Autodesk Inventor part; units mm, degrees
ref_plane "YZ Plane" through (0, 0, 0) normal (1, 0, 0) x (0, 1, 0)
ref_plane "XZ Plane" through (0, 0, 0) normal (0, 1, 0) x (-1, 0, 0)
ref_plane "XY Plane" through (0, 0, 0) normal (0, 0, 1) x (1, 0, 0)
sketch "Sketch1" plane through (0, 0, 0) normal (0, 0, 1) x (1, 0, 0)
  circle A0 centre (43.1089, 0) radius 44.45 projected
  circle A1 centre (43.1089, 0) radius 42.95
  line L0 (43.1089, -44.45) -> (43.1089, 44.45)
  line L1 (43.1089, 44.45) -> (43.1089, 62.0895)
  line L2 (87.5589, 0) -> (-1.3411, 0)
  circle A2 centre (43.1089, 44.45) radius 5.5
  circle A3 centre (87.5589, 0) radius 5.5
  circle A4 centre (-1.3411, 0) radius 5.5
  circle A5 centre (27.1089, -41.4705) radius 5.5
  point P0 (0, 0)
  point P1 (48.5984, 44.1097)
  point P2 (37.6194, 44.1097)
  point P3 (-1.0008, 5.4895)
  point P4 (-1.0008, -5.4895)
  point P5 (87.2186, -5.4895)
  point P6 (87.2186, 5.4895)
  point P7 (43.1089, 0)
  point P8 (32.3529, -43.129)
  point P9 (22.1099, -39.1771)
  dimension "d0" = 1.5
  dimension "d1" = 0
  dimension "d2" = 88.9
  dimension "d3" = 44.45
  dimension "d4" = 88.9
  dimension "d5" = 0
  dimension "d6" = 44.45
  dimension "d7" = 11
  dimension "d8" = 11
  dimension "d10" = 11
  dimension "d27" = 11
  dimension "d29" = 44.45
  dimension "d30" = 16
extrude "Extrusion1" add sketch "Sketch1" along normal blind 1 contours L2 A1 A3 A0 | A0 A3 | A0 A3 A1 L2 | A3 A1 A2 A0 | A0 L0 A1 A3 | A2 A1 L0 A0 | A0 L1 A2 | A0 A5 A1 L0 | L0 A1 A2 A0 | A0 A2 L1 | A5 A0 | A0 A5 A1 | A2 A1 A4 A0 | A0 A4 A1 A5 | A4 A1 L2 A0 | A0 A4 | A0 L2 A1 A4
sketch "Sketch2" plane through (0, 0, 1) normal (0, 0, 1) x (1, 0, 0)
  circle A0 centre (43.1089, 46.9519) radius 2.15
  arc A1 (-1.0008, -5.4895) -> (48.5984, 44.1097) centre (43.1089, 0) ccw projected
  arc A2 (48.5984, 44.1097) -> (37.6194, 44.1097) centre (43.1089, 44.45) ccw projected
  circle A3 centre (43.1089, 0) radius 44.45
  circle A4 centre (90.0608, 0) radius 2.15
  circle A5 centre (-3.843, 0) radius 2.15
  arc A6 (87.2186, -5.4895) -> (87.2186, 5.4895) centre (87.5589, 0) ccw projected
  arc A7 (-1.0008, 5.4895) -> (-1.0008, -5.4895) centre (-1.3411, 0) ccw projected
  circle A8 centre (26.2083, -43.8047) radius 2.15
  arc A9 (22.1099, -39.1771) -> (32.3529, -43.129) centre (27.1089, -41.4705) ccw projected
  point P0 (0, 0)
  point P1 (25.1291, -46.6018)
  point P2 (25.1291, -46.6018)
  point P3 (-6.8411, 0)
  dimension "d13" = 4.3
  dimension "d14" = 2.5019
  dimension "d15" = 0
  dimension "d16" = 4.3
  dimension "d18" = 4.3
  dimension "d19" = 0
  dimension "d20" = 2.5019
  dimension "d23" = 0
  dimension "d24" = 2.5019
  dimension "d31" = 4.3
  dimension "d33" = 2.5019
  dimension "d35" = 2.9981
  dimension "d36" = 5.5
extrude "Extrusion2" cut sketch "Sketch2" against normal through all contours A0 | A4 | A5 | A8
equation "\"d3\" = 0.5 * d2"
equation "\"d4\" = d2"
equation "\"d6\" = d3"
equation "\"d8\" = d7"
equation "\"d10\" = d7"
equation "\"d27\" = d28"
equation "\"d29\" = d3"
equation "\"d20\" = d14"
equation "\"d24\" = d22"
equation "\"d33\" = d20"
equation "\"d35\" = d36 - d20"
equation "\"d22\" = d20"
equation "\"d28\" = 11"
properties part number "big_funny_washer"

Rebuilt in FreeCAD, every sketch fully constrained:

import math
import FreeCAD as App
import Part
import Sketcher

V = App.Vector
Q = App.Units.Quantity

doc = App.newDocument("Part")
body = doc.addObject("PartDesign::Body", "Body")

# Sketch on XY plane
sketch1 = body.newObject("Sketcher::SketchObject", "Sketch")
sketch1.AttachmentSupport = (doc.getObject("XY_Plane"), [""])
sketch1.MapMode = "FlatFace"
sketch1.addGeometry(Part.ArcOfCircle(Part.Circle(V(43.1089, 0, 0), V(0, 0, 1), 44.45), math.radians(7.093997), math.radians(82.906003)), False)
sketch1.addGeometry(Part.ArcOfCircle(Part.Circle(V(43.1089, 44.45, 0), V(0, 0, 1), 5.5), math.radians(-3.546998), math.radians(183.546998)), False)
sketch1.addGeometry(Part.ArcOfCircle(Part.Circle(V(43.1089, 0, 0), V(0, 0, 1), 44.45), math.radians(97.093997), math.radians(172.906003)), False)
sketch1.addGeometry(Part.ArcOfCircle(Part.Circle(V(-1.3411, 0, 0), V(0, 0, 1), 5.5), math.radians(86.453002), math.radians(273.546998)), False)
sketch1.addGeometry(Part.ArcOfCircle(Part.Circle(V(43.1089, 0, 0), V(0, 0, 1), 44.45), math.radians(-172.906003), math.radians(-118.191431)), False)
sketch1.addGeometry(Part.ArcOfCircle(Part.Circle(V(27.1089, -41.4705, 0), V(0, 0, 1), 5.5), math.radians(155.355583), math.radians(342.44955)), False)
sketch1.addGeometry(Part.ArcOfCircle(Part.Circle(V(43.1089, 0, 0), V(0, 0, 1), 44.45), math.radians(-104.003437), math.radians(-7.093997)), False)
sketch1.addGeometry(Part.ArcOfCircle(Part.Circle(V(87.5589, 0, 0), V(0, 0, 1), 5.5), math.radians(-93.546998), math.radians(93.546998)), False)
sketch1.addGeometry(Part.Circle(V(43.1089, 0, 0), V(0, 0, 1), 42.95), False)
sketch1.addConstraint(Sketcher.Constraint("Coincident", 0, 2, 1, 1))
sketch1.addConstraint(Sketcher.Constraint("Coincident", 1, 2, 2, 1))
sketch1.addConstraint(Sketcher.Constraint("Coincident", 2, 2, 3, 1))
sketch1.addConstraint(Sketcher.Constraint("Coincident", 3, 2, 4, 1))
sketch1.addConstraint(Sketcher.Constraint("Coincident", 4, 2, 5, 1))
sketch1.addConstraint(Sketcher.Constraint("Coincident", 5, 2, 6, 1))
sketch1.addConstraint(Sketcher.Constraint("Coincident", 6, 2, 7, 1))
sketch1.addConstraint(Sketcher.Constraint("Coincident", 7, 2, 0, 1))
sketch1.addConstraint(Sketcher.Constraint("Coincident", 2, 3, 0, 3))
sketch1.addConstraint(Sketcher.Constraint("Coincident", 4, 3, 0, 3))
sketch1.addConstraint(Sketcher.Constraint("Coincident", 6, 3, 0, 3))
sketch1.addConstraint(Sketcher.Constraint("Coincident", 8, 3, 0, 3))
sketch1.addConstraint(Sketcher.Constraint("Equal", 0, 2))
sketch1.addConstraint(Sketcher.Constraint("Equal", 1, 3))
sketch1.addConstraint(Sketcher.Constraint("Equal", 2, 4))
sketch1.addConstraint(Sketcher.Constraint("Equal", 3, 5))
sketch1.addConstraint(Sketcher.Constraint("Equal", 4, 6))
sketch1.addConstraint(Sketcher.Constraint("Equal", 5, 7))
sketch1.addConstraint(Sketcher.Constraint("Symmetric", 2, 2, 3, 2, -1))
sketch1.addConstraint(Sketcher.Constraint("PointOnObject", 7, 3, -1))
sketch1.addConstraint(Sketcher.Constraint("Horizontal", 0, 2, 1, 2))
sketch1.addConstraint(Sketcher.Constraint("Horizontal", 3, 2, 6, 2))
sketch1.addConstraint(Sketcher.Constraint("Radius", 1, Q("5.5 mm")))
sketch1.addConstraint(Sketcher.Constraint("Radius", 0, Q("44.45 mm")))
sketch1.addConstraint(Sketcher.Constraint("DistanceX", 5, 3, 0, 3, Q("16 mm")))
sketch1.addConstraint(Sketcher.Constraint("Diameter", 8, Q("85.9 mm")))
sketch1.addConstraint(Sketcher.Constraint("DistanceY", -1, 1, 1, 3, Q("44.45 mm")))
sketch1.addConstraint(Sketcher.Constraint("DistanceX", 3, 3, 0, 3, Q("44.45 mm")))
sketch1.addConstraint(Sketcher.Constraint("DistanceX", -1, 1, 0, 3, Q("43.109 mm")))
sketch1.addConstraint(Sketcher.Constraint("DistanceY", 4, 2, -1, 1, Q("39.177 mm")))
pad1 = body.newObject("PartDesign::Pad", "Pad")
pad1.Profile = sketch1
pad1.Length = 1

# Sketch on XY plane
sketch2 = body.newObject("Sketcher::SketchObject", "Sketch001")
sketch2.AttachmentSupport = (doc.getObject("XY_Plane"), [""])
sketch2.MapMode = "FlatFace"
sketch2.AttachmentOffset = App.Placement(V(0, 0, 1), App.Rotation())
sketch2.addGeometry(Part.Circle(V(43.1089, 46.9519, 0), V(0, 0, 1), 2.15), False)
sketch2.addGeometry(Part.Circle(V(90.0608, 0, 0), V(0, 0, 1), 2.15), False)
sketch2.addGeometry(Part.Circle(V(-3.843, 0, 0), V(0, 0, 1), 2.15), False)
sketch2.addGeometry(Part.Circle(V(26.2083, -43.8047, 0), V(0, 0, 1), 2.15), False)
sketch2.addConstraint(Sketcher.Constraint("Equal", 0, 1))
sketch2.addConstraint(Sketcher.Constraint("Equal", 1, 2))
sketch2.addConstraint(Sketcher.Constraint("Equal", 2, 3))
sketch2.addConstraint(Sketcher.Constraint("PointOnObject", 1, 3, -1))
sketch2.addConstraint(Sketcher.Constraint("PointOnObject", 2, 3, -1))
sketch2.addConstraint(Sketcher.Constraint("Diameter", 0, Q("4.3 mm")))
sketch2.addConstraint(Sketcher.Constraint("DistanceX", -1, 1, 0, 3, Q("43.109 mm")))
sketch2.addConstraint(Sketcher.Constraint("DistanceY", -1, 1, 0, 3, Q("46.952 mm")))
sketch2.addConstraint(Sketcher.Constraint("DistanceX", 2, 3, -1, 1, Q("3.843 mm")))
sketch2.addConstraint(Sketcher.Constraint("DistanceX", 0, 3, 1, 3, Q("46.952 mm")))
sketch2.addConstraint(Sketcher.Constraint("DistanceX", -1, 1, 3, 3, Q("26.2083 mm")))
sketch2.addConstraint(Sketcher.Constraint("DistanceY", 3, 3, -1, 1, Q("43.8047 mm")))
pocket1 = body.newObject("PartDesign::Pocket", "Pocket")
pocket1.Profile = sketch2
pocket1.Type = "ThroughAll"

doc.recompute()
